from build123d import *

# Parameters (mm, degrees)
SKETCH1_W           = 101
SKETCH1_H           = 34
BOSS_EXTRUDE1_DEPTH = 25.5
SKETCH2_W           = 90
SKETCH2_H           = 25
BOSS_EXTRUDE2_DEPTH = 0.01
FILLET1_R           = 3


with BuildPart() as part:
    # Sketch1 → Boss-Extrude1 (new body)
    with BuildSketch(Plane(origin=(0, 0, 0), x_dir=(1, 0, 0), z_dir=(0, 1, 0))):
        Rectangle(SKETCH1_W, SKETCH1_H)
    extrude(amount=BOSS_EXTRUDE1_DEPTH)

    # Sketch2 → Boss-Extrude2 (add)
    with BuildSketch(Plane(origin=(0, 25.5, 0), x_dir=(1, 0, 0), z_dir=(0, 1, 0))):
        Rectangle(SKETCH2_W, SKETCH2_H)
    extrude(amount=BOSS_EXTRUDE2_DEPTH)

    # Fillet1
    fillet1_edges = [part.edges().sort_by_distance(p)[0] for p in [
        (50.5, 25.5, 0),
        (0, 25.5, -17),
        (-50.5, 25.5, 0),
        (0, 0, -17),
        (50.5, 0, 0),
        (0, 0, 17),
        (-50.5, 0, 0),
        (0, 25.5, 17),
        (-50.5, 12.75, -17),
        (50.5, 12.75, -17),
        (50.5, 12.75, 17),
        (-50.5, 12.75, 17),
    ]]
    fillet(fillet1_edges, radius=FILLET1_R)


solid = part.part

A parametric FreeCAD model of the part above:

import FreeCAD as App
import Part
import Sketcher
Q = App.Units.Quantity


def edges_at(feature, points):
    """Names of the edges that pass closest to the given points."""
    edges = feature.Shape.Edges
    near = lambda p: min(range(len(edges)), key=lambda i: edges[i].distToShape(Part.Vertex(*p))[0])
    return sorted({f"Edge{near(p) + 1}" for p in points})

doc = App.newDocument("Part")
body = doc.addObject("PartDesign::Body", "Body")

sketch1 = body.newObject("Sketcher::SketchObject", "Sketch")
sketch1.AttachmentSupport = (doc.getObject("XZ_Plane"), [""])
sketch1.MapMode = "FlatFace"
sketch1.addGeometry([
    Part.LineSegment(App.Vector(-50, -17, 0), App.Vector(-50, 17, 0)),
    Part.LineSegment(App.Vector(-50, 17, 0), App.Vector(50, 17, 0)),
    Part.LineSegment(App.Vector(50, 17, 0), App.Vector(50, -17, 0)),
    Part.LineSegment(App.Vector(50, -17, 0), App.Vector(-50, -17, 0)),
], False)
sketch1.addConstraint([
    Sketcher.Constraint("Coincident", 0, 2, 1, 1),
    Sketcher.Constraint("Coincident", 1, 2, 2, 1),
    Sketcher.Constraint("Coincident", 2, 2, 3, 1),
    Sketcher.Constraint("Coincident", 3, 2, 0, 1),
    Sketcher.Constraint("Vertical", 0),
    Sketcher.Constraint("Horizontal", 1),
    Sketcher.Constraint("Vertical", 2),
    Sketcher.Constraint("Horizontal", 3),
    Sketcher.Constraint("Symmetric", 0, 2, 2, 2, -1, 1),
    Sketcher.Constraint("DistanceX", 1, 1, 1, 2, Q("101 mm")),
    Sketcher.Constraint("DistanceY", 0, 1, 0, 2, Q("34 mm")),
])
pad1 = body.newObject("PartDesign::Pad", "Pad")
pad1.Profile = sketch1
pad1.Length = 25.5
pad1.Reversed = True

sketch2 = body.newObject("Sketcher::SketchObject", "Sketch001")
sketch2.AttachmentSupport = (doc.getObject("XZ_Plane"), [""])
sketch2.MapMode = "FlatFace"
sketch2.AttachmentOffset = App.Placement(App.Vector(0, 0, -25.5), App.Rotation())
sketch2.addGeometry([
    Part.LineSegment(App.Vector(-45, -12, 0), App.Vector(-45, 12, 0)),
    Part.LineSegment(App.Vector(-45, 12, 0), App.Vector(45, 12, 0)),
    Part.LineSegment(App.Vector(45, 12, 0), App.Vector(45, -12, 0)),
    Part.LineSegment(App.Vector(45, -12, 0), App.Vector(-45, -12, 0)),
], False)
sketch2.addConstraint([
    Sketcher.Constraint("Coincident", 0, 2, 1, 1),
    Sketcher.Constraint("Coincident", 1, 2, 2, 1),
    Sketcher.Constraint("Coincident", 2, 2, 3, 1),
    Sketcher.Constraint("Coincident", 3, 2, 0, 1),
    Sketcher.Constraint("Vertical", 0),
    Sketcher.Constraint("Horizontal", 1),
    Sketcher.Constraint("Vertical", 2),
    Sketcher.Constraint("Horizontal", 3),
    Sketcher.Constraint("Symmetric", 0, 2, 2, 2, -1, 1),
    Sketcher.Constraint("DistanceX", 1, 1, 1, 2, Q("90 mm")),
    Sketcher.Constraint("DistanceY", 0, 1, 0, 2, Q("25 mm")),
])
pad2 = body.newObject("PartDesign::Pad", "Pad001")
pad2.Profile = sketch2
pad2.Length = 0.01
pad2.Reversed = True
doc.recompute()

fillet = body.newObject("PartDesign::Fillet", "Fillet")
fillet.Base = (pad2, edges_at(pad2, [
    (50.5, 25.5, 0),
    (0, 25.5, -17),
    (-50.5, 25.5, 0),
    (0, 0, -17),
    (50.5, 0, 0),
    (0, 0, 17),
    (-50.5, 0, 0),
    (0, 25.5, 17),
    (-50.5, 12.75, -17),
    (50.5, 12.75, -17),
    (50.5, 12.75, 17),
    (-50.5, 12.75, 17),
]))
fillet.Radius = 3

doc.recompute()
